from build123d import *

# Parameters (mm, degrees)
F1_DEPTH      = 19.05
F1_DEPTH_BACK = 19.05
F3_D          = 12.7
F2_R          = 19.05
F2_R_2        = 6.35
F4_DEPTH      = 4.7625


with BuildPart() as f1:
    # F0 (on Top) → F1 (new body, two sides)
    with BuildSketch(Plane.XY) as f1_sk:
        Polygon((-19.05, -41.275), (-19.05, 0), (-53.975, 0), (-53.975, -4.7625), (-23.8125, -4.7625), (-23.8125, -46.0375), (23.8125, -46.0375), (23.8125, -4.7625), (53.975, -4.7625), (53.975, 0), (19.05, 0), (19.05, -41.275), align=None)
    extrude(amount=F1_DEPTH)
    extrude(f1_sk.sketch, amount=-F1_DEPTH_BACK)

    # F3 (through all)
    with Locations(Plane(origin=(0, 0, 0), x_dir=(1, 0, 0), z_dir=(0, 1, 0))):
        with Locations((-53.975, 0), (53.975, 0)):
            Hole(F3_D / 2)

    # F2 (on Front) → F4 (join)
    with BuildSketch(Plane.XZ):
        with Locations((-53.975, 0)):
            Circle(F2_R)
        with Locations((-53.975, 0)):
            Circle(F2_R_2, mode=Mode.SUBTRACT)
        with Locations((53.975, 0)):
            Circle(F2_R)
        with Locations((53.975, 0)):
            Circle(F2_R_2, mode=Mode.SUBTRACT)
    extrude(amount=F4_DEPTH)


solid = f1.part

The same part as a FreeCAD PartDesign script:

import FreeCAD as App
import Part
import Sketcher
Q = App.Units.Quantity

doc = App.newDocument("Part")
body = doc.addObject("PartDesign::Body", "Body")

# Sketch on XY plane
sketch1 = doc.addObject("Sketcher::SketchObject", "Sketch")
body.addObject(sketch1)
sketch1.AttachmentSupport = (doc.XY_Plane, [""])
sketch1.MapMode = "FlatFace"
sketch1.addGeometry([
    Part.LineSegment(App.Vector(-19.1, -41.3, 0), App.Vector(-19.1, 0, 0)),  # 0
    Part.LineSegment(App.Vector(-19.1, 0, 0), App.Vector(-54, 0, 0)),  # 1
    Part.LineSegment(App.Vector(-54, 0, 0), App.Vector(-54, -4.8, 0)),  # 2
    Part.LineSegment(App.Vector(-54, -4.8, 0), App.Vector(-23.8, -4.8, 0)),  # 3
    Part.LineSegment(App.Vector(-23.8, -4.8, 0), App.Vector(-23.8, -46, 0)),  # 4
    Part.LineSegment(App.Vector(-23.8, -46, 0), App.Vector(23.8, -46, 0)),  # 5
    Part.LineSegment(App.Vector(23.8, -46, 0), App.Vector(23.8, -4.8, 0)),  # 6
    Part.LineSegment(App.Vector(23.8, -4.8, 0), App.Vector(54, -4.8, 0)),  # 7
    Part.LineSegment(App.Vector(54, -4.8, 0), App.Vector(54, 0, 0)),  # 8
    Part.LineSegment(App.Vector(54, 0, 0), App.Vector(19.1, 0, 0)),  # 9
    Part.LineSegment(App.Vector(19.1, 0, 0), App.Vector(19.1, -41.3, 0)),  # 10
    Part.LineSegment(App.Vector(19.1, -41.3, 0), App.Vector(-19.1, -41.3, 0)),  # 11
], False)
sketch1.addConstraint([
    Sketcher.Constraint("Coincident", 0, 2, 1, 1),
    Sketcher.Constraint("Coincident", 1, 2, 2, 1),
    Sketcher.Constraint("Coincident", 2, 2, 3, 1),
    Sketcher.Constraint("Coincident", 3, 2, 4, 1),
    Sketcher.Constraint("Coincident", 4, 2, 5, 1),
    Sketcher.Constraint("Coincident", 5, 2, 6, 1),
    Sketcher.Constraint("Coincident", 6, 2, 7, 1),
    Sketcher.Constraint("Coincident", 7, 2, 8, 1),
    Sketcher.Constraint("Coincident", 8, 2, 9, 1),
    Sketcher.Constraint("Coincident", 9, 2, 10, 1),
    Sketcher.Constraint("Coincident", 10, 2, 11, 1),
    Sketcher.Constraint("Coincident", 11, 2, 0, 1),
    Sketcher.Constraint("Vertical", 0),
    Sketcher.Constraint("Horizontal", 1),
    Sketcher.Constraint("Vertical", 2),
    Sketcher.Constraint("Horizontal", 3),
    Sketcher.Constraint("Vertical", 4),
    Sketcher.Constraint("Horizontal", 5),
    Sketcher.Constraint("Vertical", 6),
    Sketcher.Constraint("Horizontal", 7),
    Sketcher.Constraint("Vertical", 8),
    Sketcher.Constraint("Horizontal", 9),
    Sketcher.Constraint("Vertical", 10),
    Sketcher.Constraint("Horizontal", 11),
    Sketcher.Constraint("Symmetric", 1, 2, 8, 2, -1, 1),
    Sketcher.Constraint("Symmetric", 3, 2, 6, 2, -2),
    Sketcher.Constraint("Symmetric", 0, 2, 9, 2, -2),
    Sketcher.Constraint("Equal", 0, 4),
    Sketcher.Constraint("DistanceX", 11, 2, 11, 1, Q("1.5 in")),
    Sketcher.Constraint("DistanceX", 1, 2, 1, 1, Q("1.375 in")),
    Sketcher.Constraint("DistanceX", 3, 1, 3, 2, Q("1.1875 in")),
    Sketcher.Constraint("DistanceY", 0, 1, 0, 2, Q("1.625 in")),
    Sketcher.Constraint("DistanceY", 2, 2, 2, 1, Q("0.1875 in")),
])
pad1 = doc.addObject("PartDesign::Pad", "Pad")
body.addObject(pad1)
pad1.Profile = sketch1
pad1.Type = "TwoLengths"
pad1.Length = Q("0.75 in")
pad1.Length2 = Q("0.75 in")

# Sketch on XZ plane
sketch2 = doc.addObject("Sketcher::SketchObject", "Sketch001")
body.addObject(sketch2)
sketch2.AttachmentSupport = (doc.XZ_Plane, [""])
sketch2.MapMode = "FlatFace"
sketch2.addGeometry([
    Part.Circle(App.Vector(-54, 0, 0), App.Vector(0, 0, 1), 6),
    Part.Circle(App.Vector(54, 0, 0), App.Vector(0, 0, 1), 6),
], False)
sketch2.addConstraint([
    Sketcher.Constraint("Equal", 0, 1),
    Sketcher.Constraint("Symmetric", 0, 3, 1, 3, -1, 1),
    Sketcher.Constraint("PointOnObject", 0, 3, -1),
    Sketcher.Constraint("Diameter", 0, Q("0.5 in")),
    Sketcher.Constraint("DistanceX", 0, 3, 1, 3, Q("4.25 in")),
])
doc.recompute()
hole = doc.addObject("PartDesign::Hole", "Hole")
body.addObject(hole)
hole.Profile = sketch2
hole.ThreadType = "None"
hole.Diameter = Q("0.5 in")
hole.DepthType = "ThroughAll"
hole.Reversed = True

# Sketch on XZ plane
sketch3 = doc.addObject("Sketcher::SketchObject", "Sketch002")
body.addObject(sketch3)
sketch3.AttachmentSupport = (doc.XZ_Plane, [""])
sketch3.MapMode = "FlatFace"
sketch3.addGeometry([
    Part.Circle(App.Vector(-54, 0, 0), App.Vector(0, 0, 1), 19),
    Part.Circle(App.Vector(-54, 0, 0), App.Vector(0, 0, 1), 6),
    Part.Circle(App.Vector(54, 0, 0), App.Vector(0, 0, 1), 19),
    Part.Circle(App.Vector(54, 0, 0), App.Vector(0, 0, 1), 6),
], False)
sketch3.addConstraint([
    Sketcher.Constraint("Coincident", 1, 3, 0, 3),
    Sketcher.Constraint("Coincident", 3, 3, 2, 3),
    Sketcher.Constraint("Equal", 0, 2),
    Sketcher.Constraint("Equal", 1, 3),
    Sketcher.Constraint("Symmetric", 0, 3, 2, 3, -1, 1),
    Sketcher.Constraint("PointOnObject", 0, 3, -1),
    Sketcher.Constraint("Diameter", 0, Q("1.5 in")),
    Sketcher.Constraint("Diameter", 1, Q("0.5 in")),
    Sketcher.Constraint("DistanceX", 0, 3, 2, 3, Q("4.25 in")),
])
pad2 = doc.addObject("PartDesign::Pad", "Pad001")
body.addObject(pad2)
pad2.Profile = sketch3
pad2.Length = Q("0.1875 in")

doc.recompute()
